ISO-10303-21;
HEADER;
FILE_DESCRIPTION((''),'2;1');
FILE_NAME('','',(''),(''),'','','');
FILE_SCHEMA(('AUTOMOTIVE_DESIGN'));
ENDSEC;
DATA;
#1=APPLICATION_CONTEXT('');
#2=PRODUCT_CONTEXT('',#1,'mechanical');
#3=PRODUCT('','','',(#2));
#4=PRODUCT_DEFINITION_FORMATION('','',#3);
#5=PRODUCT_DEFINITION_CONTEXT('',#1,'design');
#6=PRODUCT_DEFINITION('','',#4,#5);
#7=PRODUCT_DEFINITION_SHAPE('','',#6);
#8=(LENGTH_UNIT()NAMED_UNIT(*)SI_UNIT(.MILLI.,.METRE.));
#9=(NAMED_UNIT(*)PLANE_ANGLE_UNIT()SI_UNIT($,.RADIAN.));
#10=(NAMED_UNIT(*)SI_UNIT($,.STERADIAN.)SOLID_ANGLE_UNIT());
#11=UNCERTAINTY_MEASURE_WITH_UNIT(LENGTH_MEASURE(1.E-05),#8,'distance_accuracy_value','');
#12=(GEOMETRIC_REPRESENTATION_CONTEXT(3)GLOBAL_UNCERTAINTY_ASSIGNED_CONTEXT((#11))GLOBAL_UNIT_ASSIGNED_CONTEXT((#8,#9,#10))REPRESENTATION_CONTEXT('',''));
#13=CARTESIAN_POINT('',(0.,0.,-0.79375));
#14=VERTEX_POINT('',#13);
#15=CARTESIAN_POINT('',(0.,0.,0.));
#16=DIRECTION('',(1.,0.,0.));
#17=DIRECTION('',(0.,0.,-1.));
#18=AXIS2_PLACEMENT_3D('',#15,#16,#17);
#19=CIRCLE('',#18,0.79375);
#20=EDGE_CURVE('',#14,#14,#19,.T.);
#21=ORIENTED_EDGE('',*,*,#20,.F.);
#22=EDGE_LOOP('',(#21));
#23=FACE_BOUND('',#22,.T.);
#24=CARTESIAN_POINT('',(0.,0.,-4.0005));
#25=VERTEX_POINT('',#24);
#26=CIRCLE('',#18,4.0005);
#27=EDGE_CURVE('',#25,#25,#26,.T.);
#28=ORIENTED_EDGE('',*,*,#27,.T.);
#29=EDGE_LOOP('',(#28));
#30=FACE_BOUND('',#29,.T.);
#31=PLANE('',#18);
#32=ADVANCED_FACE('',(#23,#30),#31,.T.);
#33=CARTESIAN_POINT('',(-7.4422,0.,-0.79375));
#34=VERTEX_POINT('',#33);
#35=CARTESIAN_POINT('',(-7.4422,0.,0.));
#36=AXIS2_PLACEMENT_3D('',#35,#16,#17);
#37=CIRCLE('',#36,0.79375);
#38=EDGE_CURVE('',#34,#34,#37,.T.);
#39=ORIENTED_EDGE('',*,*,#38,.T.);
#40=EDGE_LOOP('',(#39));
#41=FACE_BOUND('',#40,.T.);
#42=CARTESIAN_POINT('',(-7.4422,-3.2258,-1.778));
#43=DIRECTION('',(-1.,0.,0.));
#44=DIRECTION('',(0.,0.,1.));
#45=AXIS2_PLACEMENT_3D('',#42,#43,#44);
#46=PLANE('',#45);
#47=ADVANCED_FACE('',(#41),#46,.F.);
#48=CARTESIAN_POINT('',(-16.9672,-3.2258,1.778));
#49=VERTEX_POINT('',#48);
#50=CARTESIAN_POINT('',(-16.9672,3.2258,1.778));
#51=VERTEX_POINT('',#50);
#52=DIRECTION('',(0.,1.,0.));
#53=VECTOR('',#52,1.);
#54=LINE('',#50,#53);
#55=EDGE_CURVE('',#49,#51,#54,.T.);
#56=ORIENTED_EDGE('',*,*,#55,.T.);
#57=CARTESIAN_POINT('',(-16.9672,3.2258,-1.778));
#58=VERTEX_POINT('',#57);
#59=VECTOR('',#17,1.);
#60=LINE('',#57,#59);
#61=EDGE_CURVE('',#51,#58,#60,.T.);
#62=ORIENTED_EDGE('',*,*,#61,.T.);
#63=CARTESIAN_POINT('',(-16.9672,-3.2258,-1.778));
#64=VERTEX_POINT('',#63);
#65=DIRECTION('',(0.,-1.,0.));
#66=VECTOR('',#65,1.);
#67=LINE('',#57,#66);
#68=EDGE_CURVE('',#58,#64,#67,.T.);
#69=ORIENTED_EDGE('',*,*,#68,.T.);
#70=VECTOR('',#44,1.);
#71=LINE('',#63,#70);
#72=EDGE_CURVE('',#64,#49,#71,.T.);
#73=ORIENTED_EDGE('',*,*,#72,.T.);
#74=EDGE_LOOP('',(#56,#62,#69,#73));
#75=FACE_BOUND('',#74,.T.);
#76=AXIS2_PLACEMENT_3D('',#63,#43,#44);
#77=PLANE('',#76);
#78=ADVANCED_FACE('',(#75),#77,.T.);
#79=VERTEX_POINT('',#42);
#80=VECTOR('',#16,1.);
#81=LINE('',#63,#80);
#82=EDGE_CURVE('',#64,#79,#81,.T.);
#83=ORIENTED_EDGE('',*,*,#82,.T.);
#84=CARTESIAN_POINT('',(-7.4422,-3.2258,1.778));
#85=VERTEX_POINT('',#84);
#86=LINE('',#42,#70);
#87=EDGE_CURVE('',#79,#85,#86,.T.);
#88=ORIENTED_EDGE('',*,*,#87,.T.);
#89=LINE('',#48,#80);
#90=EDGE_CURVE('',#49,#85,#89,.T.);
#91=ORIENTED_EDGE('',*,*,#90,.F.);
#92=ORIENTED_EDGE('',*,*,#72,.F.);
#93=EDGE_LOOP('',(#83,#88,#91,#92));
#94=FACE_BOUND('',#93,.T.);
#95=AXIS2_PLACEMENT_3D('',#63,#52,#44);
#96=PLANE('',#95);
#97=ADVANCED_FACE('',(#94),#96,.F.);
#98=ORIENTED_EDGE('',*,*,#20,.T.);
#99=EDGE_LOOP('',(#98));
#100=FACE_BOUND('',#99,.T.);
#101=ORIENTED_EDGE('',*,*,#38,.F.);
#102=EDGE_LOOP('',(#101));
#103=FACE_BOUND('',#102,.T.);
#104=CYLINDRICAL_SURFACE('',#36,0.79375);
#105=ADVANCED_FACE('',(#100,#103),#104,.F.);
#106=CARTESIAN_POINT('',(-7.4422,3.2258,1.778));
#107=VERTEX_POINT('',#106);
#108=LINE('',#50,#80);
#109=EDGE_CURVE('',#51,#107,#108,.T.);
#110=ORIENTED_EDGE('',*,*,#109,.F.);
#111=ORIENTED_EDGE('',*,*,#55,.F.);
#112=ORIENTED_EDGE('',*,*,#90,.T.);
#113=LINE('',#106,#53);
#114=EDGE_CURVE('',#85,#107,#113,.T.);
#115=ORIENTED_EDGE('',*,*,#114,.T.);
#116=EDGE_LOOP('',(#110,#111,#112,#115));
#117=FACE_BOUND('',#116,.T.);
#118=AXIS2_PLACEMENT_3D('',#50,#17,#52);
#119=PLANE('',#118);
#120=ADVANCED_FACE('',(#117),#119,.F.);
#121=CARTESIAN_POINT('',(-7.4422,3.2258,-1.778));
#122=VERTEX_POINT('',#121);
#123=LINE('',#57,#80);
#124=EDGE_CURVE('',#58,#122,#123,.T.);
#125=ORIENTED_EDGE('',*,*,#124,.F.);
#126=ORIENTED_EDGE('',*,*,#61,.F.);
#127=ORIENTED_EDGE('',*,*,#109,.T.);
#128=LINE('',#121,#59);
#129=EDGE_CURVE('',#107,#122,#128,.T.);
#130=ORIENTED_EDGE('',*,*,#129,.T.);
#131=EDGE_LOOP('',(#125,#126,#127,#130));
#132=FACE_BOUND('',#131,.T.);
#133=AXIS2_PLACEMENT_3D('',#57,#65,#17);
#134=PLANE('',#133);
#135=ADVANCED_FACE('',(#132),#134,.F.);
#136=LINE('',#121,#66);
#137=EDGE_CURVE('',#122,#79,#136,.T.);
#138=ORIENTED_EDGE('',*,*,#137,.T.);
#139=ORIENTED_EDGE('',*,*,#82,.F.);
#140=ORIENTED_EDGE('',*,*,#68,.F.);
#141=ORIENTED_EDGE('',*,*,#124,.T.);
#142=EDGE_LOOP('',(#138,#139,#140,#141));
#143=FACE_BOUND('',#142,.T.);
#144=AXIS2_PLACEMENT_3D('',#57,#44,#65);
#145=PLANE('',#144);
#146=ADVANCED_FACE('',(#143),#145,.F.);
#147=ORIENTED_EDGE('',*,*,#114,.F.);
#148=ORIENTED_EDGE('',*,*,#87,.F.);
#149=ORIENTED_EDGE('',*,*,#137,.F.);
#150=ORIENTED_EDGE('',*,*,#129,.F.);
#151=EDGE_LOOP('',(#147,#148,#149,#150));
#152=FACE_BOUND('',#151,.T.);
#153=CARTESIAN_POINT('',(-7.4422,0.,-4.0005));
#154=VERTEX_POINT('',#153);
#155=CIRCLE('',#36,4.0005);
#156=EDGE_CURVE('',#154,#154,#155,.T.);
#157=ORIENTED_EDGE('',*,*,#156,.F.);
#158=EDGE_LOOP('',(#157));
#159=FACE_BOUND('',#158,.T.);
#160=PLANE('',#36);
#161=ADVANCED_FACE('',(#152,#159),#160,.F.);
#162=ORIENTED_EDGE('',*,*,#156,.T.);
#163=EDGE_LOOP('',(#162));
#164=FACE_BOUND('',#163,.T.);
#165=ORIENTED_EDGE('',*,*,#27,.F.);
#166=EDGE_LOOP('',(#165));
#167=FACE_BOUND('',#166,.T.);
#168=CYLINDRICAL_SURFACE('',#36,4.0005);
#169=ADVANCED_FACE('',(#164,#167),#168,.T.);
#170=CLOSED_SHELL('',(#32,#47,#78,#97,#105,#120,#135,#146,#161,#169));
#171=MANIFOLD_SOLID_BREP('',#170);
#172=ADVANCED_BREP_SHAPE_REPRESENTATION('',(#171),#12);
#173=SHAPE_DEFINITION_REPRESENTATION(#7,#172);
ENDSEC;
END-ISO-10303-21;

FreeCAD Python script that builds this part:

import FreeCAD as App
import Part
import Sketcher
Q = App.Units.Quantity

doc = App.newDocument("Part")
body = doc.addObject("PartDesign::Body", "Body")

# Sketch on YZ plane
sketch1 = doc.addObject("Sketcher::SketchObject", "Sketch")
body.addObject(sketch1)
sketch1.AttachmentSupport = (doc.YZ_Plane, [""])
sketch1.MapMode = "FlatFace"
sketch1.addGeometry([
    Part.Circle(App.Vector(0, 0, 0), App.Vector(0, 0, 1), 4.0005),
    Part.Circle(App.Vector(0, 0, 0), App.Vector(0, 0, 1), 0.79375),
], False)
sketch1.addConstraint([
    Sketcher.Constraint("Coincident", 0, 3, -1, 1),
    Sketcher.Constraint("Coincident", 1, 3, -1, 1),
    Sketcher.Constraint("Diameter", 0, Q("0.315 in")),
    Sketcher.Constraint("Diameter", 1, Q("0.0625 in")),
])
pad1 = doc.addObject("PartDesign::Pad", "Pad")
body.addObject(pad1)
pad1.Profile = sketch1
pad1.Length = Q("0.293 in")
pad1.Reversed = True

# Sketch on YZ plane
sketch2 = doc.addObject("Sketcher::SketchObject", "Sketch001")
body.addObject(sketch2)
sketch2.AttachmentSupport = (doc.YZ_Plane, [""])
sketch2.MapMode = "FlatFace"
sketch2.AttachmentOffset = App.Placement(App.Vector(0, 0, -0.293 * 25.4), App.Rotation())
sketch2.addGeometry([
    Part.LineSegment(App.Vector(3.2258, -1.778, 0), App.Vector(-3.2258, -1.778, 0)),
    Part.LineSegment(App.Vector(-3.2258, -1.778, 0), App.Vector(-3.2258, 1.778, 0)),
    Part.LineSegment(App.Vector(-3.2258, 1.778, 0), App.Vector(3.2258, 1.778, 0)),
    Part.LineSegment(App.Vector(3.2258, 1.778, 0), App.Vector(3.2258, -1.778, 0)),
], False)
sketch2.addConstraint([
    Sketcher.Constraint("Coincident", 0, 2, 1, 1),
    Sketcher.Constraint("Coincident", 1, 2, 2, 1),
    Sketcher.Constraint("Coincident", 2, 2, 3, 1),
    Sketcher.Constraint("Coincident", 3, 2, 0, 1),
    Sketcher.Constraint("Horizontal", 0),
    Sketcher.Constraint("Vertical", 1),
    Sketcher.Constraint("Horizontal", 2),
    Sketcher.Constraint("Vertical", 3),
    Sketcher.Constraint("Symmetric", 0, 2, 2, 2, -1, 1),
    Sketcher.Constraint("DistanceY", 1, 1, 1, 2, Q("0.14 in")),
    Sketcher.Constraint("DistanceX", 0, 2, 0, 1, Q("0.254 in")),
])
pad2 = doc.addObject("PartDesign::Pad", "Pad001")
body.addObject(pad2)
pad2.Profile = sketch2
pad2.Length = Q("0.375 in")
pad2.Reversed = True

doc.recompute()
